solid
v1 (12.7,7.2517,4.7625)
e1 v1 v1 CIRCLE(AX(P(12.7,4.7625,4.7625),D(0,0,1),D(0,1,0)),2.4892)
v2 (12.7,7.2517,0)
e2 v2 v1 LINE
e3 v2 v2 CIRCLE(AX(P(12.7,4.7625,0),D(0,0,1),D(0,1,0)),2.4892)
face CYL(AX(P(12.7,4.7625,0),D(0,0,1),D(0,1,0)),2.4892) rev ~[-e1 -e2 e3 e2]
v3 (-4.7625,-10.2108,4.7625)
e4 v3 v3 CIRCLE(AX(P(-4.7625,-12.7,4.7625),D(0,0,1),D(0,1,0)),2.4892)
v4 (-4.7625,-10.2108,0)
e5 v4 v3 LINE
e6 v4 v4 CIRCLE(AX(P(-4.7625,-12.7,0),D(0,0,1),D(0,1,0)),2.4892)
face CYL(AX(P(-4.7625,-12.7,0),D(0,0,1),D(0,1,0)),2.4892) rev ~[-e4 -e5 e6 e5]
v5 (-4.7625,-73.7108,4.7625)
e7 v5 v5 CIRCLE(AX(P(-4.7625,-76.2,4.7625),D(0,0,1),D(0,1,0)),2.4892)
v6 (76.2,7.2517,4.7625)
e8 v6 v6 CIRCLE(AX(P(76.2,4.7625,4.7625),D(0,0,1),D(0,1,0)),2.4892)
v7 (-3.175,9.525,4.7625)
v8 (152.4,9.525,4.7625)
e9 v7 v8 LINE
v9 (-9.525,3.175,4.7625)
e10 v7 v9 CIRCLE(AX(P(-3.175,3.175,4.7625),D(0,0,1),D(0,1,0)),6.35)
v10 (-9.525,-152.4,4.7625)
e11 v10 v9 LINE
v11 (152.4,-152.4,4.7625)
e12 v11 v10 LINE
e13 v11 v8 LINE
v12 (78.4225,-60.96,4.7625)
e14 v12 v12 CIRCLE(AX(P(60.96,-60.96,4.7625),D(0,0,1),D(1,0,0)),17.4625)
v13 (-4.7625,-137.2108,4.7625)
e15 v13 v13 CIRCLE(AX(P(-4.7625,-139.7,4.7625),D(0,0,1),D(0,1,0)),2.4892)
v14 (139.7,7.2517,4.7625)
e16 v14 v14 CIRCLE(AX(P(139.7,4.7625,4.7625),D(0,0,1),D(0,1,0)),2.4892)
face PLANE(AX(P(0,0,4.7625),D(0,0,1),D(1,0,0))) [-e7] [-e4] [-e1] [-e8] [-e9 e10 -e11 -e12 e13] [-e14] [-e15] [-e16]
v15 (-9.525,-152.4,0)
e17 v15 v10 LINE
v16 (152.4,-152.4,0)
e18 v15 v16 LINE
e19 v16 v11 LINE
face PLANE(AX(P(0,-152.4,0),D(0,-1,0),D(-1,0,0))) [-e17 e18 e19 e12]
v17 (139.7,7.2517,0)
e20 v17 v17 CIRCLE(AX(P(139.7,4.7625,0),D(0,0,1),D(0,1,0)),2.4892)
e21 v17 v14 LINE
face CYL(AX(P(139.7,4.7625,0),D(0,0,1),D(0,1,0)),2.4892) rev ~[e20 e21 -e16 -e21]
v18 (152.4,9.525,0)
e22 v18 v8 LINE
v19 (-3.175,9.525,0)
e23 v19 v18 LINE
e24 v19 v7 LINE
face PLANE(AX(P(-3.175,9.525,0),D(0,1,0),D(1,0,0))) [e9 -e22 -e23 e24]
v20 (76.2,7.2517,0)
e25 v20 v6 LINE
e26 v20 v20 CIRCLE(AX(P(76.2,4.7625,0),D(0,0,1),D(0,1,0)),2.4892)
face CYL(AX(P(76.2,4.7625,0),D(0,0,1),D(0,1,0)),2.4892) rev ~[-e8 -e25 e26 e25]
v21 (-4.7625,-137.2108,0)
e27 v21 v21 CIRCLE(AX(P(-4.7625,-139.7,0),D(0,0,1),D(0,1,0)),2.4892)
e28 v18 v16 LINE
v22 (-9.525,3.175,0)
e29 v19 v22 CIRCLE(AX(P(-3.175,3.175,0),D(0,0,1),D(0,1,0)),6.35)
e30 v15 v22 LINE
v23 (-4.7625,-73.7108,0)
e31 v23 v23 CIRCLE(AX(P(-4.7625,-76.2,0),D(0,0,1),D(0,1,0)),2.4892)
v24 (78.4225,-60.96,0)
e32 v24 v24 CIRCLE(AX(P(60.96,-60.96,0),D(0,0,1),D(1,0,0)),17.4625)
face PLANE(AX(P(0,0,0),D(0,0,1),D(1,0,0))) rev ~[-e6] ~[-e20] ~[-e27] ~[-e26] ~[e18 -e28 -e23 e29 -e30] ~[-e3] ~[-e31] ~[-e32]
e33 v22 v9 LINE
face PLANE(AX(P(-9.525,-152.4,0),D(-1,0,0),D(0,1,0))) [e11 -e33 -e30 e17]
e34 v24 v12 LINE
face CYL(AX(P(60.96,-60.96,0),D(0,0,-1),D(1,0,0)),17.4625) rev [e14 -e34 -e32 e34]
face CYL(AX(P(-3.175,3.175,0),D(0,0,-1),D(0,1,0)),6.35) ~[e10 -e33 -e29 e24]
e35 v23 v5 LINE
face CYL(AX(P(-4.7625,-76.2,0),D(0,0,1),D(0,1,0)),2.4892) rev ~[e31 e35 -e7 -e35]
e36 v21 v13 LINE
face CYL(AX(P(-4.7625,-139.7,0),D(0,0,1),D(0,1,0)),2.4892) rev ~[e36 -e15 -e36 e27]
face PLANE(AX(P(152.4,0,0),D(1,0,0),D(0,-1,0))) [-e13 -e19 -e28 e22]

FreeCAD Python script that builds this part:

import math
import FreeCAD as App
import Part
import Sketcher
Q = App.Units.Quantity

doc = App.newDocument("Part")
body = doc.addObject("PartDesign::Body", "Body")

# Sketch on XY plane
sketch1 = doc.addObject("Sketcher::SketchObject", "Sketch")
body.addObject(sketch1)
sketch1.AttachmentSupport = (doc.XY_Plane, [""])
sketch1.MapMode = "FlatFace"
sketch1.addGeometry([
    Part.LineSegment(App.Vector(-10, -152, 0), App.Vector(152, -152, 0)),  # 0
    Part.LineSegment(App.Vector(152, -152, 0), App.Vector(152, 10, 0)),  # 1
    Part.LineSegment(App.Vector(152, 10, 0), App.Vector(-3, 10, 0)),  # 2
    Part.ArcOfCircle(Part.Circle(App.Vector(-3, 3, 0), App.Vector(0, 0, 1), 6), math.radians(90), math.radians(180)),  # 3
    Part.LineSegment(App.Vector(-10, 3, 0), App.Vector(-10, -152, 0)),  # 4
    Part.Circle(App.Vector(61, -61, 0), App.Vector(0, 0, 1), 17),  # 5
], False)
sketch1.addConstraint([
    Sketcher.Constraint("Coincident", 0, 2, 1, 1),
    Sketcher.Constraint("Coincident", 1, 2, 2, 1),
    Sketcher.Constraint("Tangent", 2, 2, 3, 1),
    Sketcher.Constraint("Tangent", 3, 2, 4, 1),
    Sketcher.Constraint("Coincident", 4, 2, 0, 1),
    Sketcher.Constraint("Horizontal", 0),
    Sketcher.Constraint("Vertical", 1),
    Sketcher.Constraint("Horizontal", 2),
    Sketcher.Constraint("Vertical", 4),
    Sketcher.Constraint("Equal", 0, 1),
    Sketcher.Constraint("Radius", 3, Q("0.25 in")),
    Sketcher.Constraint("Diameter", 5, Q("1.375 in")),
    Sketcher.Constraint("DistanceX", -1, 1, 0, 2, Q("6 in")),
    Sketcher.Constraint("DistanceY", 0, 2, -1, 1, Q("6 in")),
    Sketcher.Constraint("DistanceX", -1, 1, 5, 3, Q("2.4 in")),
    Sketcher.Constraint("DistanceY", 5, 3, -1, 1, Q("2.4 in")),
    Sketcher.Constraint("DistanceX", 3, 3, -1, 1, Q("0.125 in")),
])
pad1 = doc.addObject("PartDesign::Pad", "Pad")
body.addObject(pad1)
pad1.Profile = sketch1
pad1.Length = Q("0.1875 in")

# Sketch on XY plane
sketch2 = doc.addObject("Sketcher::SketchObject", "Sketch001")
body.addObject(sketch2)
sketch2.AttachmentSupport = (doc.XY_Plane, [""])
sketch2.MapMode = "FlatFace"
sketch2.addGeometry([
    Part.Circle(App.Vector(12.7, 4.8, 0), App.Vector(0, 0, 1), 2.5),  # 0
    Part.Circle(App.Vector(-4.8, -12.7, 0), App.Vector(0, 0, 1), 2.5),  # 1
    Part.Circle(App.Vector(76.2, 4.8, 0), App.Vector(0, 0, 1), 2.5),  # 2
    Part.Circle(App.Vector(139.7, 4.8, 0), App.Vector(0, 0, 1), 2.5),  # 3
    Part.Circle(App.Vector(-4.8, -76.2, 0), App.Vector(0, 0, 1), 2.5),  # 4
    Part.Circle(App.Vector(-4.8, -139.7, 0), App.Vector(0, 0, 1), 2.5),  # 5
], False)
sketch2.addConstraint([
    Sketcher.Constraint("Equal", 0, 1),
    Sketcher.Constraint("Equal", 1, 2),
    Sketcher.Constraint("Equal", 2, 3),
    Sketcher.Constraint("Equal", 3, 4),
    Sketcher.Constraint("Equal", 4, 5),
    Sketcher.Constraint("Horizontal", 0, 3, 2, 3),
    Sketcher.Constraint("Horizontal", 2, 3, 3, 3),
    Sketcher.Constraint("Vertical", 1, 3, 4, 3),
    Sketcher.Constraint("Vertical", 4, 3, 5, 3),
    Sketcher.Constraint("Diameter", 0, Q("0.196 in")),
    Sketcher.Constraint("DistanceX", -1, 1, 2, 3, Q("3 in")),
    Sketcher.Constraint("DistanceY", 4, 3, -1, 1, Q("3 in")),
    Sketcher.Constraint("DistanceX", 0, 3, 3, 3, Q("5 in")),
    Sketcher.Constraint("DistanceY", 5, 3, 1, 3, Q("5 in")),
    Sketcher.Constraint("DistanceX", -1, 1, 0, 3, Q("0.5 in")),
    Sketcher.Constraint("DistanceY", 1, 3, -1, 1, Q("0.5 in")),
    Sketcher.Constraint("DistanceY", -1, 1, 0, 3, Q("0.1875 in")),
    Sketcher.Constraint("DistanceX", 1, 3, -1, 1, Q("0.1875 in")),
])
doc.recompute()
hole = doc.addObject("PartDesign::Hole", "Hole")
body.addObject(hole)
hole.Profile = sketch2
hole.ThreadType = "None"
hole.Diameter = Q("0.196 in")
hole.DepthType = "ThroughAll"
hole.Reversed = True

doc.recompute()
